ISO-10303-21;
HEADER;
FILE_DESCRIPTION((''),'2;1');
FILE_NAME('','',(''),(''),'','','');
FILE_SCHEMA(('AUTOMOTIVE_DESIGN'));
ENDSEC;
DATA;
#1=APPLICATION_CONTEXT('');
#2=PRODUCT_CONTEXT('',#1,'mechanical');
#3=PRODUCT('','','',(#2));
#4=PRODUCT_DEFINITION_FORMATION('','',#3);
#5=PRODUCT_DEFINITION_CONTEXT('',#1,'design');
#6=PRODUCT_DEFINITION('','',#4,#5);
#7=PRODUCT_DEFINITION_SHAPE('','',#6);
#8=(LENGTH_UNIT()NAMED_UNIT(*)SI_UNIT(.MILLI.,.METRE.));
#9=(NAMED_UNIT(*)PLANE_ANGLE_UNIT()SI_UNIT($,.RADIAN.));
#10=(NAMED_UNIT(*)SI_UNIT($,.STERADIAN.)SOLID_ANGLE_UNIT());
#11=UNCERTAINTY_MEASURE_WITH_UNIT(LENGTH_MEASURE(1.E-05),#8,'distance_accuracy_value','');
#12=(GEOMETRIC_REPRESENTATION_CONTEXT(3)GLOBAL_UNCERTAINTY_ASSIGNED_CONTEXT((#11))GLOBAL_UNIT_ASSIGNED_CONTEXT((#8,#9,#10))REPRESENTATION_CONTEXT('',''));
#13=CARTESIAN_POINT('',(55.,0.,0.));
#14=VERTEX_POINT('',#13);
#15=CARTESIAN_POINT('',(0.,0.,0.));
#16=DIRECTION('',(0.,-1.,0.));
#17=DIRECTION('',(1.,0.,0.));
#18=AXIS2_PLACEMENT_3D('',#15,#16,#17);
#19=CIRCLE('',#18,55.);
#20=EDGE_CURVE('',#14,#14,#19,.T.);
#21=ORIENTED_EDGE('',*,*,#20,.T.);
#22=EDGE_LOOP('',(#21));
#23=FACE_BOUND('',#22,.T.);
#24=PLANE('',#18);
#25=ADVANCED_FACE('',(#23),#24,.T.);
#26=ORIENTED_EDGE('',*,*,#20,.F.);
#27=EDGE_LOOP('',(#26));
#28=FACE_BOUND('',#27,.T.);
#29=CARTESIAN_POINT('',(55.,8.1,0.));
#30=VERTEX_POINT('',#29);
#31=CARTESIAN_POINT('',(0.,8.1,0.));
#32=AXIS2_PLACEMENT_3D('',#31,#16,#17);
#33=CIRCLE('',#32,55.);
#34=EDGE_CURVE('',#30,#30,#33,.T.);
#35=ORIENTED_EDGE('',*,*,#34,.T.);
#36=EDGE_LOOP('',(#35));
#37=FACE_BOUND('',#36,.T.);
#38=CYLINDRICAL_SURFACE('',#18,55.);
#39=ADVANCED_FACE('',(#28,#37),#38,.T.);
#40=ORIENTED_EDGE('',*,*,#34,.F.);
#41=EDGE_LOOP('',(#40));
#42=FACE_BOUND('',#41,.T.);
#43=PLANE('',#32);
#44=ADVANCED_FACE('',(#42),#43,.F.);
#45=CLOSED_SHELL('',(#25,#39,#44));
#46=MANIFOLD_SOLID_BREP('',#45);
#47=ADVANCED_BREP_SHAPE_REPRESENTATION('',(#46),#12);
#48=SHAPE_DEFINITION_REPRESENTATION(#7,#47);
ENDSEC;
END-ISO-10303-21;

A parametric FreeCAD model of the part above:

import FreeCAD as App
import Part
import Sketcher
Q = App.Units.Quantity

doc = App.newDocument("Part")
params = doc.addObject("Spreadsheet::Sheet", "Params")
for row, (alias, value) in enumerate([
    ("sketch1_width", "55 mm"),
    ("sketch1_height", "8.1 mm"),
    ("revolution_angle", "360 deg"),
], start=1):
    params.set(f"A{row}", alias)
    params.set(f"B{row}", "=" + value)
    params.setAlias(f"B{row}", alias)

body = doc.addObject("PartDesign::Body", "Body")

# Sketch on XY plane
sketch1 = doc.addObject("Sketcher::SketchObject", "Sketch")
body.addObject(sketch1)
sketch1.AttachmentSupport = (doc.XY_Plane, [""])
sketch1.MapMode = "FlatFace"
sketch1.addGeometry(Part.LineSegment(App.Vector(-55, 8, 0), App.Vector(-55, 0, 0)), False)
sketch1.addGeometry(Part.LineSegment(App.Vector(-55, 0, 0), App.Vector(0, 0, 0)), False)
sketch1.addGeometry(Part.LineSegment(App.Vector(0, 0, 0), App.Vector(0, 8, 0)), False)
sketch1.addGeometry(Part.LineSegment(App.Vector(0, 8, 0), App.Vector(-55, 8, 0)), False)
sketch1.addConstraint(Sketcher.Constraint("Coincident", 0, 2, 1, 1))
sketch1.addConstraint(Sketcher.Constraint("Coincident", 1, 2, 2, 1))
sketch1.addConstraint(Sketcher.Constraint("Coincident", 2, 2, 3, 1))
sketch1.addConstraint(Sketcher.Constraint("Coincident", 3, 2, 0, 1))
sketch1.addConstraint(Sketcher.Constraint("Vertical", 0))
sketch1.addConstraint(Sketcher.Constraint("Horizontal", 1))
sketch1.addConstraint(Sketcher.Constraint("Vertical", 2))
sketch1.addConstraint(Sketcher.Constraint("Horizontal", 3))
sketch1.addConstraint(Sketcher.Constraint("Coincident", 1, 2, -1, 1))
sketch1.addConstraint(Sketcher.Constraint("DistanceX", 1, 1, 1, 2, Q("55 mm")))
sketch1.addConstraint(Sketcher.Constraint("DistanceY", 0, 2, 0, 1, Q("8.1 mm")))
sketch1.setExpression("Constraints[9]", "Params.sketch1_width")
sketch1.setExpression("Constraints[10]", "Params.sketch1_height")
revolution = doc.addObject("PartDesign::Revolution", "Revolution")
body.addObject(revolution)
revolution.Profile = sketch1
revolution.ReferenceAxis = (sketch1, ["V_Axis"])
revolution.setExpression("Angle", "Params.revolution_angle")

doc.recompute()
